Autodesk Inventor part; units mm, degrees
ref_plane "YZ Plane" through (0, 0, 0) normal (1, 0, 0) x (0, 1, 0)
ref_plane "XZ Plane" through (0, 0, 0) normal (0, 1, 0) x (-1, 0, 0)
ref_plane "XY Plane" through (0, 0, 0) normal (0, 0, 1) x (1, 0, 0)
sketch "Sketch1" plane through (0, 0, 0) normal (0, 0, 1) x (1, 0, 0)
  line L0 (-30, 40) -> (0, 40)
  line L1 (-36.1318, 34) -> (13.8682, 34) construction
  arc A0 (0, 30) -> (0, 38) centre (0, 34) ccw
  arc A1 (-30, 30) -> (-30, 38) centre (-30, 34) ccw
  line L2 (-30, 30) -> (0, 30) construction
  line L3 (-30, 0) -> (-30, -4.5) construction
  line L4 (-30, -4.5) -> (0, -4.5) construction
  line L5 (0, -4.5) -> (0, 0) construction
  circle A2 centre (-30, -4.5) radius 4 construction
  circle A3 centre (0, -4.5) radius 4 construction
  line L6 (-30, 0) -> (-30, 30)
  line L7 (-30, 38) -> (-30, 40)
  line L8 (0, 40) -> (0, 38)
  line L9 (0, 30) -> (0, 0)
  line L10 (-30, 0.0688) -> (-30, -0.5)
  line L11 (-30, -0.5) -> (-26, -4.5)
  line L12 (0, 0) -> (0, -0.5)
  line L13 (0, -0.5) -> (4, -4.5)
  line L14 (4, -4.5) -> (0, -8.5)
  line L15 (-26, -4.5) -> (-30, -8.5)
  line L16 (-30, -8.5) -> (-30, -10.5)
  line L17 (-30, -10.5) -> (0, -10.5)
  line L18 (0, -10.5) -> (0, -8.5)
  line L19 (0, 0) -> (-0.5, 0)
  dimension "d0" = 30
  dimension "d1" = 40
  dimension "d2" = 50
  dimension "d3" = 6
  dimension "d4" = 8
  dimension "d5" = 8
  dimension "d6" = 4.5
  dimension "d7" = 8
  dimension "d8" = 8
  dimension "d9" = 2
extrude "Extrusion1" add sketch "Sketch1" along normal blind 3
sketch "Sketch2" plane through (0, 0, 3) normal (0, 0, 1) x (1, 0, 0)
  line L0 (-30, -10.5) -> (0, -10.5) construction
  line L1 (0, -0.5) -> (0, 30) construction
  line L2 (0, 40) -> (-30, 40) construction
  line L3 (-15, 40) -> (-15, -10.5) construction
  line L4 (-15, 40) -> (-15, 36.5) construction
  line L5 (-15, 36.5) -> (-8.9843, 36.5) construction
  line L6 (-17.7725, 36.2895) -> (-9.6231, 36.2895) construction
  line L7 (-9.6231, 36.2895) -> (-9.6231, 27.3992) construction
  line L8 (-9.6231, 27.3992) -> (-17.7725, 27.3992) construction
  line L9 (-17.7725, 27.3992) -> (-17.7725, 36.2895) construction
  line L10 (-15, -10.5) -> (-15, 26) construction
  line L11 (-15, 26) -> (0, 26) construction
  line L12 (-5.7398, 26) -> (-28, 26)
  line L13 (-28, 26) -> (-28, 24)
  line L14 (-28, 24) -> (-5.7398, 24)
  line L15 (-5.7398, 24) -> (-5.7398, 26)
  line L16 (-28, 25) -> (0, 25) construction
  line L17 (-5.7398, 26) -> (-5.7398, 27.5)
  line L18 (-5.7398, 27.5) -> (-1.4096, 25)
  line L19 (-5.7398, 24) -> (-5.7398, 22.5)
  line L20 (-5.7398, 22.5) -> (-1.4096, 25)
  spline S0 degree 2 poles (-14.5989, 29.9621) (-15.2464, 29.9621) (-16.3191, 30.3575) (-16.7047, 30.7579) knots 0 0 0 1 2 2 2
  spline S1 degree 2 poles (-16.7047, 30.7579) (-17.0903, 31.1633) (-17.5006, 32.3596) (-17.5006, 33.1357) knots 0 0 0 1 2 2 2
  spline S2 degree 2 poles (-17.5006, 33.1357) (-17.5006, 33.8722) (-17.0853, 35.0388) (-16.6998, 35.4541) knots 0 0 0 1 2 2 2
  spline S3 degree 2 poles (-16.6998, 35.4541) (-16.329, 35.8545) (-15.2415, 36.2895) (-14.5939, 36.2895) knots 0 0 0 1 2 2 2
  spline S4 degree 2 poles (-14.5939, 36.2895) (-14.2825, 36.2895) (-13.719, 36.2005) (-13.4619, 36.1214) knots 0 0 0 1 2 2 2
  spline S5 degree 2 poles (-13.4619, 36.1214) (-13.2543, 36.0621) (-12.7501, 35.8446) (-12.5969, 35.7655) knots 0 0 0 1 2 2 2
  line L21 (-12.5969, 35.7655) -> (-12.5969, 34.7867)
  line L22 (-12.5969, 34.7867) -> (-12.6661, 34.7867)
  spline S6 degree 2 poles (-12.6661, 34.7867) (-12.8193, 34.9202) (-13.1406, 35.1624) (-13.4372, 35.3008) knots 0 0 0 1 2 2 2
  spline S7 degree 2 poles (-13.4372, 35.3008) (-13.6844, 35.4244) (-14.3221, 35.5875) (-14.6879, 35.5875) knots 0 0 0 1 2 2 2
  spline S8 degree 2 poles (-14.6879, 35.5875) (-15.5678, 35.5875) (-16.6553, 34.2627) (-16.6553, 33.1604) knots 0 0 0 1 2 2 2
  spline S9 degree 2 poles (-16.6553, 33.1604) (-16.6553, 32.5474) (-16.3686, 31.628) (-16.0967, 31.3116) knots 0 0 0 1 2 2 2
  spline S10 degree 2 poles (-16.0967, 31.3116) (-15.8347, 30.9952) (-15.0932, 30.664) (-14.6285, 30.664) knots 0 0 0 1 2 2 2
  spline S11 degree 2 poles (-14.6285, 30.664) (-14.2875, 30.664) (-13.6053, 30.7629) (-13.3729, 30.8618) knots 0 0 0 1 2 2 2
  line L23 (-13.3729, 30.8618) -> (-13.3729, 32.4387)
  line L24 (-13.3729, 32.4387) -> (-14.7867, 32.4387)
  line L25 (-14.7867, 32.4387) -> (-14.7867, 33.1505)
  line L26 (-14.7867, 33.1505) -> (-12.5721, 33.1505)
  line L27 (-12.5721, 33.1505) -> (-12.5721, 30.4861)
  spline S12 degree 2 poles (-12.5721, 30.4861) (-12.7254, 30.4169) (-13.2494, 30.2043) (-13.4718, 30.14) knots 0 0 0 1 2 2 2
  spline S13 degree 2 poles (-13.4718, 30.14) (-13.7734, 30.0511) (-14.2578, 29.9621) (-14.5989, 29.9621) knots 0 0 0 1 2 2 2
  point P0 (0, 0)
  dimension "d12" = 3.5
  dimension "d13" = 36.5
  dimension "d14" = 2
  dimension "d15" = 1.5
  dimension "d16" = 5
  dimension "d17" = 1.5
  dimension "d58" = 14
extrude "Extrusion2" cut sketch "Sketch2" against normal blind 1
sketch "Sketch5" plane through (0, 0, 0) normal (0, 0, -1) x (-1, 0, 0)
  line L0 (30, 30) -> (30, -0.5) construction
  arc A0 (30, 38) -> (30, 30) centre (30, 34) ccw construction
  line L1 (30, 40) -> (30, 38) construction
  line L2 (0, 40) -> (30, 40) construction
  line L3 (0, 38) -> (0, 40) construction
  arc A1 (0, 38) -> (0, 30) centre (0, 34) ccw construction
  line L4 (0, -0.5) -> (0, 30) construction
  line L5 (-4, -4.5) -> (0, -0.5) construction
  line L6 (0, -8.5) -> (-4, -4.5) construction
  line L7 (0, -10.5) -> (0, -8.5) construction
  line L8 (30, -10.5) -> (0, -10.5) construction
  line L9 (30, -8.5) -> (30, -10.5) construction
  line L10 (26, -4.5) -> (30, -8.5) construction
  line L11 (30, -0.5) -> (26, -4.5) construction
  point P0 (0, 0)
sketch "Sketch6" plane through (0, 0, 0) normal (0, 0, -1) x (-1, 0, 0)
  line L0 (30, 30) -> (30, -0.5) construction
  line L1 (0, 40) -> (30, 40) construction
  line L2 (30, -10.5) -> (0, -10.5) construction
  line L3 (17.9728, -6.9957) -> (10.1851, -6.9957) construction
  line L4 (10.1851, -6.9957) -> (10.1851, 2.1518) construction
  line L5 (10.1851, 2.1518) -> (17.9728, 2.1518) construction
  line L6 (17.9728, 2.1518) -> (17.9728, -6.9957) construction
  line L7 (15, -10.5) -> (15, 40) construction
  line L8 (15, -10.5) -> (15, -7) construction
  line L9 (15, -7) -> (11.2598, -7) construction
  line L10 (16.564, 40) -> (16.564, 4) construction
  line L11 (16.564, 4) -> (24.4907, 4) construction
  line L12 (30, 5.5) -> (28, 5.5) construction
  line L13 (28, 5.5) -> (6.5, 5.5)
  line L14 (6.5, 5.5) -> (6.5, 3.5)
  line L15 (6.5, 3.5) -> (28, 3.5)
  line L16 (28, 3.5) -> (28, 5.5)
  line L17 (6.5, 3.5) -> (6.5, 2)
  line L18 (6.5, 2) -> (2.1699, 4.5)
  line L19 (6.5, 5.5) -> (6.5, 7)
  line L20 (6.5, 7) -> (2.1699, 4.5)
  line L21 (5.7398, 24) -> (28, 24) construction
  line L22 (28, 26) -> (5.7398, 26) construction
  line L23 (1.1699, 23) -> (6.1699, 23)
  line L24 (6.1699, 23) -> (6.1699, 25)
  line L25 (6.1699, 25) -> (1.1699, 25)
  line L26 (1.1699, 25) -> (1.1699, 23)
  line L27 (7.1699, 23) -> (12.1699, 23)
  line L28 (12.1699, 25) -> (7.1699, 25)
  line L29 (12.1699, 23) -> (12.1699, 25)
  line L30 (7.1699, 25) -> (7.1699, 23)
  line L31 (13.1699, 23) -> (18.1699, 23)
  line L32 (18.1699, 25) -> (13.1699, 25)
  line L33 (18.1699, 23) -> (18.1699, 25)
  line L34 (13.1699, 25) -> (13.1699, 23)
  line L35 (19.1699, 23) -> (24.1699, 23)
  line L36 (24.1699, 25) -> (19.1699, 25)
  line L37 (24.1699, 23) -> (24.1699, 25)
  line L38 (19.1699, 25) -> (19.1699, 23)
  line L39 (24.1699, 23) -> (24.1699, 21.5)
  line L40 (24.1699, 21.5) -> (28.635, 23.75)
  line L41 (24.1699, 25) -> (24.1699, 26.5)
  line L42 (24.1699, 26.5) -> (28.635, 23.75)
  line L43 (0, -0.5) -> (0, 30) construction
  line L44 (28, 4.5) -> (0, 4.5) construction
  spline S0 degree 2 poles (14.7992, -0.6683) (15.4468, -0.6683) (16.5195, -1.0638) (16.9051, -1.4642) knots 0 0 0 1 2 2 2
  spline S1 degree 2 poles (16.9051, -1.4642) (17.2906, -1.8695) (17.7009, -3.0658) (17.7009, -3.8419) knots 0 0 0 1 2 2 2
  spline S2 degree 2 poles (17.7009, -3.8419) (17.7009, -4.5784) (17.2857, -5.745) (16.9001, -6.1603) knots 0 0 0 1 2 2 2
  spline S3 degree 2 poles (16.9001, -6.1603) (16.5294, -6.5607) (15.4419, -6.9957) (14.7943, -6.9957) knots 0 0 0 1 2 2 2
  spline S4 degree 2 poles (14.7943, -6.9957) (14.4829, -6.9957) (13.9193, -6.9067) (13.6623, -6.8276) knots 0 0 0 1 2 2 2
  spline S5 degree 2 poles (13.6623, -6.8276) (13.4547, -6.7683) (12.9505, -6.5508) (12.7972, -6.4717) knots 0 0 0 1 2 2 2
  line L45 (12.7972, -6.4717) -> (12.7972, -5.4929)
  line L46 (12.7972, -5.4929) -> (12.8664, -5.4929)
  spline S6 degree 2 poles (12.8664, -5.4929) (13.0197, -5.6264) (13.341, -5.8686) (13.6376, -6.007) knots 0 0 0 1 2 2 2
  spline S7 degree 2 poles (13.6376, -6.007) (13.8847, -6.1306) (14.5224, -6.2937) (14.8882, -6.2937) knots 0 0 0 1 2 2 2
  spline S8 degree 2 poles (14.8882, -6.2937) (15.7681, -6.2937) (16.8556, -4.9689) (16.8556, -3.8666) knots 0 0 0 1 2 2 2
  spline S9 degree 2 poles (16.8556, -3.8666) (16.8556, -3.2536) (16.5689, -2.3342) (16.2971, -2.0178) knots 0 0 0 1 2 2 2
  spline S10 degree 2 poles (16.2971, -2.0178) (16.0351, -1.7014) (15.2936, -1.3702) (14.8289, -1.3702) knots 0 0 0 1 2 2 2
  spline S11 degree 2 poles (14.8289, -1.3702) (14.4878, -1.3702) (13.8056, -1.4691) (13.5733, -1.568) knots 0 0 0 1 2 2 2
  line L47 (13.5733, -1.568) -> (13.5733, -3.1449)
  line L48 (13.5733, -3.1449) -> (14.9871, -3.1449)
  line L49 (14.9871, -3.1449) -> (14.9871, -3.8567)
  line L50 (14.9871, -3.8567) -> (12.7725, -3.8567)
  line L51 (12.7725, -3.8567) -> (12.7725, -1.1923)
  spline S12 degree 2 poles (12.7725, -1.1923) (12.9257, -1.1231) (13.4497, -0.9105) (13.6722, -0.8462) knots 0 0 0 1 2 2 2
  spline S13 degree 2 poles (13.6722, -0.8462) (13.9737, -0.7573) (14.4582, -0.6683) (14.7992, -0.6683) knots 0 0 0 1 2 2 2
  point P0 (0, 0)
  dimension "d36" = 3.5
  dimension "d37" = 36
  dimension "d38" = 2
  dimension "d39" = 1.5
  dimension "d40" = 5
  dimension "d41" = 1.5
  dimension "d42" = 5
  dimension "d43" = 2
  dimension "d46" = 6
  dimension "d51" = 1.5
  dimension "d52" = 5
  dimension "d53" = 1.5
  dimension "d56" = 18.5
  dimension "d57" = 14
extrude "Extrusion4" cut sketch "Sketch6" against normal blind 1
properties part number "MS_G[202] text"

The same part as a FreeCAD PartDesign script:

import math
import FreeCAD as App
import Part
import Sketcher

V = App.Vector


def add_polygon(sketch, points):
    """Adds a closed chain of lines whose ends are joined by coincident constraints."""
    first, n = sketch.GeometryCount, len(points)
    for a, b in zip(points, points[1:] + points[:1]):
        sketch.addGeometry(Part.LineSegment(App.Vector(*a, 0), App.Vector(*b, 0)), False)
    for i in range(n):
        sketch.addConstraint(Sketcher.Constraint("Coincident", first + i, 2, first + (i + 1) % n, 1))

doc = App.newDocument("Part")
params = doc.addObject("Spreadsheet::Sheet", "Params")
for row, (alias, value) in enumerate([
    ("sketch1_radius", "4 mm"),
    ("sketch1_width", "30 mm"),
    ("sketch1_height", "2 mm"),
    ("pad1_length", "3 mm"),
    ("sketch2_height", "2 mm"),
    ("sketch2_length", "5 mm"),
    ("sketch2_height2", "1.5 mm"),
    ("pocket1_length", "1 mm"),
    ("sketch3_width", "5 mm"),
    ("sketch3_height", "2 mm"),
    ("sketch3_length", "5 mm"),
    ("sketch3_height2", "1.5 mm"),
    ("sketch3_width2", "21.5 mm"),
    ("pocket2_length", "1 mm"),
], start=1):
    params.set(f"A{row}", alias)
    params.set(f"B{row}", "=" + value)
    params.setAlias(f"B{row}", alias)

body = doc.addObject("PartDesign::Body", "Body")

# Sketch on XY plane
sketch1 = body.newObject("Sketcher::SketchObject", "Sketch")
sketch1.AttachmentSupport = (doc.getObject("XY_Plane"), [""])
sketch1.MapMode = "FlatFace"
sketch1.addGeometry([
    Part.LineSegment(V(0, 40, 0), V(-30, 40, 0)),  # 0
    Part.LineSegment(V(-30, 40, 0), V(-30, 38, 0)),  # 1
    Part.ArcOfCircle(Part.Circle(V(-30, 34, 0), V(0, 0, 1), 4), math.radians(-90), math.radians(90)),  # 2
    Part.LineSegment(V(-30, 30, 0), V(-30, -0.5, 0)),  # 3
    Part.LineSegment(V(-30, -0.5, 0), V(-26, -4.5, 0)),  # 4
    Part.LineSegment(V(-26, -4.5, 0), V(-30, -8.5, 0)),  # 5
    Part.LineSegment(V(-30, -8.5, 0), V(-30, -10.5, 0)),  # 6
    Part.LineSegment(V(-30, -10.5, 0), V(0, -10.5, 0)),  # 7
    Part.LineSegment(V(0, -10.5, 0), V(0, -8.5, 0)),  # 8
    Part.LineSegment(V(0, -8.5, 0), V(4, -4.5, 0)),  # 9
    Part.LineSegment(V(4, -4.5, 0), V(0, -0.5, 0)),  # 10
    Part.LineSegment(V(0, -0.5, 0), V(0, 30, 0)),  # 11
    Part.ArcOfCircle(Part.Circle(V(0, 34, 0), V(0, 0, 1), 4), math.radians(-90), math.radians(90)),  # 12
    Part.LineSegment(V(0, 38, 0), V(0, 40, 0)),  # 13
], False)
sketch1.addConstraint([
    Sketcher.Constraint("Coincident", 0, 2, 1, 1),
    Sketcher.Constraint("Coincident", 1, 2, 2, 2),
    Sketcher.Constraint("Coincident", 2, 1, 3, 1),
    Sketcher.Constraint("Coincident", 3, 2, 4, 1),
    Sketcher.Constraint("Coincident", 4, 2, 5, 1),
    Sketcher.Constraint("Coincident", 5, 2, 6, 1),
    Sketcher.Constraint("Coincident", 6, 2, 7, 1),
    Sketcher.Constraint("Coincident", 7, 2, 8, 1),
    Sketcher.Constraint("Coincident", 8, 2, 9, 1),
    Sketcher.Constraint("Coincident", 9, 2, 10, 1),
    Sketcher.Constraint("Coincident", 10, 2, 11, 1),
    Sketcher.Constraint("Coincident", 11, 2, 12, 1),
    Sketcher.Constraint("Coincident", 12, 2, 13, 1),
    Sketcher.Constraint("Coincident", 13, 2, 0, 1),
    Sketcher.Constraint("Horizontal", 0),
    Sketcher.Constraint("Vertical", 1),
    Sketcher.Constraint("Vertical", 3),
    Sketcher.Constraint("Vertical", 6),
    Sketcher.Constraint("Horizontal", 7),
    Sketcher.Constraint("Vertical", 8),
    Sketcher.Constraint("Vertical", 11),
    Sketcher.Constraint("Vertical", 13),
    Sketcher.Constraint("Equal", 2, 12),
    Sketcher.Constraint("PointOnObject", 12, 3, -2),
    Sketcher.Constraint("PointOnObject", 7, 2, -2),
    Sketcher.Constraint("PointOnObject", 10, 2, -2),
    Sketcher.Constraint("PointOnObject", 12, 2, -2),
    Sketcher.Constraint("Perpendicular", 4, 5),
    Sketcher.Constraint("Parallel", 5, 9),
    Sketcher.Constraint("Perpendicular", 9, 10),
    Sketcher.Constraint("Horizontal", 2, 3, 12, 3),
    Sketcher.Constraint("Horizontal", 5, 2, 8, 2),
    Sketcher.Constraint("Horizontal", 4, 2, 9, 2),
    Sketcher.Constraint("Horizontal", 3, 2, 10, 2),
    Sketcher.Constraint("Vertical", 2, 3, 0, 2),
    Sketcher.Constraint("Vertical", 1, 2, 2, 1),
    Sketcher.Constraint("Equal", 1, 6),
    Sketcher.Constraint("Equal", 4, 5),
    Sketcher.Constraint("Radius", 2, 4.0),
    Sketcher.Constraint("DistanceX", 0, 2, 0, 1, 30.0),
    Sketcher.Constraint("DistanceY", 1, 2, 1, 1, 2.0),
    Sketcher.Constraint("DistanceY", -1, 1, 0, 2, 40.0),
    Sketcher.Constraint("DistanceY", 5, 2, 3, 2, 8.0),
    Sketcher.Constraint("DistanceY", 4, 2, -1, 1, 4.5),
])
sketch1.setExpression("Constraints[38]", "Params.sketch1_radius")
sketch1.setExpression("Constraints[39]", "Params.sketch1_width")
sketch1.setExpression("Constraints[40]", "Params.sketch1_height")
pad1 = body.newObject("PartDesign::Pad", "Pad")
pad1.Profile = sketch1
pad1.setExpression("Length", "Params.pad1_length")

# Sketch on XY plane
sketch2 = body.newObject("Sketcher::SketchObject", "Sketch001")
sketch2.AttachmentSupport = (doc.getObject("XY_Plane"), [""])
sketch2.MapMode = "FlatFace"
sketch2.AttachmentOffset = App.Placement(V(0, 0, 3), App.Rotation())
add_polygon(sketch2, [(-28, 24), (-5.7398, 24), (-5.7398, 22.5), (-1.4096, 25), (-5.7398, 27.5), (-5.7398, 26), (-28, 26)])  # lines 0-6
sketch2.addGeometry(Part.BSplineCurve([V(-14.5989, 29.9621, 0), V(-15.2464, 29.9621, 0), V(-16.3191, 30.3575, 0), V(-16.7047, 30.7579, 0)], [3, 1, 3], [0, 1, 2], False, 2, [1, 1, 1, 1], False), False)  # 7
sketch2.addGeometry(Part.BSplineCurve([V(-13.4718, 30.14, 0), V(-13.7734, 30.0511, 0), V(-14.2578, 29.9621, 0), V(-14.5989, 29.9621, 0)], [3, 1, 3], [0, 1, 2], False, 2, [1, 1, 1, 1], False), False)  # 8
sketch2.addGeometry(Part.BSplineCurve([V(-12.5721, 30.4861, 0), V(-12.7254, 30.4169, 0), V(-13.2494, 30.2043, 0), V(-13.4718, 30.14, 0)], [3, 1, 3], [0, 1, 2], False, 2, [1, 1, 1, 1], False), False)  # 9
sketch2.addGeometry(Part.LineSegment(V(-12.5721, 30.4861, 0), V(-12.5721, 33.1505, 0)), False)  # 10
sketch2.addGeometry(Part.LineSegment(V(-12.5721, 33.1505, 0), V(-14.7867, 33.1505, 0)), False)  # 11
sketch2.addGeometry(Part.LineSegment(V(-14.7867, 33.1505, 0), V(-14.7867, 32.4387, 0)), False)  # 12
sketch2.addGeometry(Part.LineSegment(V(-14.7867, 32.4387, 0), V(-13.3729, 32.4387, 0)), False)  # 13
sketch2.addGeometry(Part.LineSegment(V(-13.3729, 32.4387, 0), V(-13.3729, 30.8618, 0)), False)  # 14
sketch2.addGeometry(Part.BSplineCurve([V(-14.6285, 30.664, 0), V(-14.2875, 30.664, 0), V(-13.6053, 30.7629, 0), V(-13.3729, 30.8618, 0)], [3, 1, 3], [0, 1, 2], False, 2, [1, 1, 1, 1], False), False)  # 15
sketch2.addGeometry(Part.BSplineCurve([V(-16.0967, 31.3116, 0), V(-15.8347, 30.9952, 0), V(-15.0932, 30.664, 0), V(-14.6285, 30.664, 0)], [3, 1, 3], [0, 1, 2], False, 2, [1, 1, 1, 1], False), False)  # 16
sketch2.addGeometry(Part.BSplineCurve([V(-16.6553, 33.1604, 0), V(-16.6553, 32.5474, 0), V(-16.3686, 31.628, 0), V(-16.0967, 31.3116, 0)], [3, 1, 3], [0, 1, 2], False, 2, [1, 1, 1, 1], False), False)  # 17
sketch2.addGeometry(Part.BSplineCurve([V(-14.6879, 35.5875, 0), V(-15.5678, 35.5875, 0), V(-16.6553, 34.2627, 0), V(-16.6553, 33.1604, 0)], [3, 1, 3], [0, 1, 2], False, 2, [1, 1, 1, 1], False), False)  # 18
sketch2.addGeometry(Part.BSplineCurve([V(-13.4372, 35.3008, 0), V(-13.6844, 35.4244, 0), V(-14.3221, 35.5875, 0), V(-14.6879, 35.5875, 0)], [3, 1, 3], [0, 1, 2], False, 2, [1, 1, 1, 1], False), False)  # 19
sketch2.addGeometry(Part.BSplineCurve([V(-12.6661, 34.7867, 0), V(-12.8193, 34.9202, 0), V(-13.1406, 35.1624, 0), V(-13.4372, 35.3008, 0)], [3, 1, 3], [0, 1, 2], False, 2, [1, 1, 1, 1], False), False)  # 20
sketch2.addGeometry(Part.LineSegment(V(-12.6661, 34.7867, 0), V(-12.5969, 34.7867, 0)), False)  # 21
sketch2.addGeometry(Part.LineSegment(V(-12.5969, 34.7867, 0), V(-12.5969, 35.7655, 0)), False)  # 22
sketch2.addGeometry(Part.BSplineCurve([V(-13.4619, 36.1214, 0), V(-13.2543, 36.0621, 0), V(-12.7501, 35.8446, 0), V(-12.5969, 35.7655, 0)], [3, 1, 3], [0, 1, 2], False, 2, [1, 1, 1, 1], False), False)  # 23
sketch2.addGeometry(Part.BSplineCurve([V(-14.5939, 36.2895, 0), V(-14.2825, 36.2895, 0), V(-13.719, 36.2005, 0), V(-13.4619, 36.1214, 0)], [3, 1, 3], [0, 1, 2], False, 2, [1, 1, 1, 1], False), False)  # 24
sketch2.addGeometry(Part.BSplineCurve([V(-16.6998, 35.4541, 0), V(-16.329, 35.8545, 0), V(-15.2415, 36.2895, 0), V(-14.5939, 36.2895, 0)], [3, 1, 3], [0, 1, 2], False, 2, [1, 1, 1, 1], False), False)  # 25
sketch2.addGeometry(Part.BSplineCurve([V(-17.5006, 33.1357, 0), V(-17.5006, 33.8722, 0), V(-17.0853, 35.0388, 0), V(-16.6998, 35.4541, 0)], [3, 1, 3], [0, 1, 2], False, 2, [1, 1, 1, 1], False), False)  # 26
sketch2.addGeometry(Part.BSplineCurve([V(-16.7047, 30.7579, 0), V(-17.0903, 31.1633, 0), V(-17.5006, 32.3596, 0), V(-17.5006, 33.1357, 0)], [3, 1, 3], [0, 1, 2], False, 2, [1, 1, 1, 1], False), False)  # 27
sketch2.addConstraint([
    Sketcher.Constraint("Block", 7),
    Sketcher.Constraint("Block", 8),
    Sketcher.Constraint("Block", 9),
    Sketcher.Constraint("Block", 15),
    Sketcher.Constraint("Block", 16),
    Sketcher.Constraint("Block", 17),
    Sketcher.Constraint("Block", 18),
    Sketcher.Constraint("Block", 19),
    Sketcher.Constraint("Block", 20),
    Sketcher.Constraint("Block", 23),
    Sketcher.Constraint("Block", 24),
    Sketcher.Constraint("Block", 25),
    Sketcher.Constraint("Block", 26),
    Sketcher.Constraint("Block", 27),
    Sketcher.Constraint("Coincident", 9, 1, 10, 1),
    Sketcher.Constraint("Coincident", 10, 2, 11, 1),
    Sketcher.Constraint("Coincident", 11, 2, 12, 1),
    Sketcher.Constraint("Coincident", 12, 2, 13, 1),
    Sketcher.Constraint("Coincident", 13, 2, 14, 1),
    Sketcher.Constraint("Coincident", 14, 2, 15, 2),
    Sketcher.Constraint("Coincident", 20, 1, 21, 1),
    Sketcher.Constraint("Coincident", 21, 2, 22, 1),
    Sketcher.Constraint("Coincident", 22, 2, 23, 2),
    Sketcher.Constraint("Horizontal", 0),
    Sketcher.Constraint("Vertical", 1),
    Sketcher.Constraint("Vertical", 4),
    Sketcher.Constraint("Horizontal", 5),
    Sketcher.Constraint("Vertical", 6),
    Sketcher.Constraint("Vertical", 10),
    Sketcher.Constraint("Horizontal", 11),
    Sketcher.Constraint("Vertical", 12),
    Sketcher.Constraint("Horizontal", 13),
    Sketcher.Constraint("Vertical", 14),
    Sketcher.Constraint("Horizontal", 21),
    Sketcher.Constraint("Vertical", 22),
    Sketcher.Constraint("Vertical", 1, 2, 3, 2),
    Sketcher.Constraint("Equal", 1, 4),
    Sketcher.Constraint("Equal", 2, 3),
    Sketcher.Constraint("DistanceY", 6, 2, 6, 1, 2.0),
    Sketcher.Constraint("Distance", 2, 5.0),
    Sketcher.Constraint("DistanceY", 1, 2, 1, 1, 1.5),
    Sketcher.Constraint("DistanceY", -1, 1, 0, 2, 24.0),
    Sketcher.Constraint("DistanceX", 5, 2, -1, 1, 28.0),
    Sketcher.Constraint("DistanceY", 14, 2, 14, 1, 1.577),
    Sketcher.Constraint("DistanceX", 0, 1, 0, 2, 22.2602),
    Sketcher.Constraint("DistanceX", 11, 2, 11, 1, 2.2146),
    Sketcher.Constraint("DistanceY", 10, 1, 10, 2, 2.6644),
])
sketch2.setExpression("Constraints[45]", "Params.sketch2_height")
sketch2.setExpression("Constraints[46]", "Params.sketch2_length")
sketch2.setExpression("Constraints[47]", "Params.sketch2_height2")
pocket1 = body.newObject("PartDesign::Pocket", "Pocket")
pocket1.Profile = sketch2
pocket1.setExpression("Length", "Params.pocket1_length")

# Sketch on XY plane
sketch3 = body.newObject("Sketcher::SketchObject", "Sketch002")
sketch3.AttachmentSupport = (doc.getObject("XY_Plane"), [""])
sketch3.MapMode = "FlatFace"
add_polygon(sketch3, [(-28, 3.5), (-28, 5.5), (-6.5, 5.5), (-6.5, 7), (-2.1699, 4.5), (-6.5, 2), (-6.5, 3.5)])  # lines 0-6
add_polygon(sketch3, [(-1.1699, 25), (-1.1699, 23), (-6.1699, 23), (-6.1699, 25)])  # lines 7-10
add_polygon(sketch3, [(-7.1699, 25), (-7.1699, 23), (-12.1699, 23), (-12.1699, 25)])  # lines 11-14
add_polygon(sketch3, [(-13.1699, 25), (-13.1699, 23), (-18.1699, 23), (-18.1699, 25)])  # lines 15-18
add_polygon(sketch3, [(-19.1699, 25), (-19.1699, 23), (-24.1699, 23), (-24.1699, 21.5), (-28.635, 23.75), (-24.1699, 26.5), (-24.1699, 25)])  # lines 19-25
sketch3.addGeometry(Part.BSplineCurve([V(-14.7992, -0.6683, 0), V(-15.4468, -0.6683, 0), V(-16.5195, -1.0638, 0), V(-16.9051, -1.4642, 0)], [3, 1, 3], [0, 1, 2], False, 2, [1, 1, 1, 1], False), False)  # 26
sketch3.addGeometry(Part.BSplineCurve([V(-13.6722, -0.8462, 0), V(-13.9737, -0.7573, 0), V(-14.4582, -0.6683, 0), V(-14.7992, -0.6683, 0)], [3, 1, 3], [0, 1, 2], False, 2, [1, 1, 1, 1], False), False)  # 27
sketch3.addGeometry(Part.BSplineCurve([V(-12.7725, -1.1923, 0), V(-12.9257, -1.1231, 0), V(-13.4497, -0.9105, 0), V(-13.6722, -0.8462, 0)], [3, 1, 3], [0, 1, 2], False, 2, [1, 1, 1, 1], False), False)  # 28
sketch3.addGeometry(Part.LineSegment(V(-12.7725, -1.1923, 0), V(-12.7725, -3.8567, 0)), False)  # 29
sketch3.addGeometry(Part.LineSegment(V(-12.7725, -3.8567, 0), V(-14.9871, -3.8567, 0)), False)  # 30
sketch3.addGeometry(Part.LineSegment(V(-14.9871, -3.8567, 0), V(-14.9871, -3.1449, 0)), False)  # 31
sketch3.addGeometry(Part.LineSegment(V(-14.9871, -3.1449, 0), V(-13.5733, -3.1449, 0)), False)  # 32
sketch3.addGeometry(Part.LineSegment(V(-13.5733, -3.1449, 0), V(-13.5733, -1.568, 0)), False)  # 33
sketch3.addGeometry(Part.BSplineCurve([V(-14.8289, -1.3702, 0), V(-14.4878, -1.3702, 0), V(-13.8056, -1.4691, 0), V(-13.5733, -1.568, 0)], [3, 1, 3], [0, 1, 2], False, 2, [1, 1, 1, 1], False), False)  # 34
sketch3.addGeometry(Part.BSplineCurve([V(-16.2971, -2.0178, 0), V(-16.0351, -1.7014, 0), V(-15.2936, -1.3702, 0), V(-14.8289, -1.3702, 0)], [3, 1, 3], [0, 1, 2], False, 2, [1, 1, 1, 1], False), False)  # 35
sketch3.addGeometry(Part.BSplineCurve([V(-16.8556, -3.8666, 0), V(-16.8556, -3.2536, 0), V(-16.5689, -2.3342, 0), V(-16.2971, -2.0178, 0)], [3, 1, 3], [0, 1, 2], False, 2, [1, 1, 1, 1], False), False)  # 36
sketch3.addGeometry(Part.BSplineCurve([V(-14.8882, -6.2937, 0), V(-15.7681, -6.2937, 0), V(-16.8556, -4.9689, 0), V(-16.8556, -3.8666, 0)], [3, 1, 3], [0, 1, 2], False, 2, [1, 1, 1, 1], False), False)  # 37
sketch3.addGeometry(Part.BSplineCurve([V(-13.6376, -6.007, 0), V(-13.8847, -6.1306, 0), V(-14.5224, -6.2937, 0), V(-14.8882, -6.2937, 0)], [3, 1, 3], [0, 1, 2], False, 2, [1, 1, 1, 1], False), False)  # 38
sketch3.addGeometry(Part.BSplineCurve([V(-12.8664, -5.4929, 0), V(-13.0197, -5.6264, 0), V(-13.341, -5.8686, 0), V(-13.6376, -6.007, 0)], [3, 1, 3], [0, 1, 2], False, 2, [1, 1, 1, 1], False), False)  # 39
sketch3.addGeometry(Part.LineSegment(V(-12.8664, -5.4929, 0), V(-12.7972, -5.4929, 0)), False)  # 40
sketch3.addGeometry(Part.LineSegment(V(-12.7972, -5.4929, 0), V(-12.7972, -6.4717, 0)), False)  # 41
sketch3.addGeometry(Part.BSplineCurve([V(-13.6623, -6.8276, 0), V(-13.4547, -6.7683, 0), V(-12.9505, -6.5508, 0), V(-12.7972, -6.4717, 0)], [3, 1, 3], [0, 1, 2], False, 2, [1, 1, 1, 1], False), False)  # 42
sketch3.addGeometry(Part.BSplineCurve([V(-14.7943, -6.9957, 0), V(-14.4829, -6.9957, 0), V(-13.9193, -6.9067, 0), V(-13.6623, -6.8276, 0)], [3, 1, 3], [0, 1, 2], False, 2, [1, 1, 1, 1], False), False)  # 43
sketch3.addGeometry(Part.BSplineCurve([V(-16.9001, -6.1603, 0), V(-16.5294, -6.5607, 0), V(-15.4419, -6.9957, 0), V(-14.7943, -6.9957, 0)], [3, 1, 3], [0, 1, 2], False, 2, [1, 1, 1, 1], False), False)  # 44
sketch3.addGeometry(Part.BSplineCurve([V(-17.7009, -3.8419, 0), V(-17.7009, -4.5784, 0), V(-17.2857, -5.745, 0), V(-16.9001, -6.1603, 0)], [3, 1, 3], [0, 1, 2], False, 2, [1, 1, 1, 1], False), False)  # 45
sketch3.addGeometry(Part.BSplineCurve([V(-16.9051, -1.4642, 0), V(-17.2906, -1.8695, 0), V(-17.7009, -3.0658, 0), V(-17.7009, -3.8419, 0)], [3, 1, 3], [0, 1, 2], False, 2, [1, 1, 1, 1], False), False)  # 46
sketch3.addConstraint([
    Sketcher.Constraint("Block", 26),
    Sketcher.Constraint("Block", 27),
    Sketcher.Constraint("Block", 28),
    Sketcher.Constraint("Block", 34),
    Sketcher.Constraint("Block", 35),
    Sketcher.Constraint("Block", 36),
    Sketcher.Constraint("Block", 37),
    Sketcher.Constraint("Block", 38),
    Sketcher.Constraint("Block", 39),
    Sketcher.Constraint("Block", 42),
    Sketcher.Constraint("Block", 43),
    Sketcher.Constraint("Block", 44),
    Sketcher.Constraint("Block", 45),
    Sketcher.Constraint("Block", 46),
    Sketcher.Constraint("Coincident", 28, 1, 29, 1),
    Sketcher.Constraint("Coincident", 29, 2, 30, 1),
    Sketcher.Constraint("Coincident", 30, 2, 31, 1),
    Sketcher.Constraint("Coincident", 31, 2, 32, 1),
    Sketcher.Constraint("Coincident", 32, 2, 33, 1),
    Sketcher.Constraint("Coincident", 33, 2, 34, 2),
    Sketcher.Constraint("Coincident", 39, 1, 40, 1),
    Sketcher.Constraint("Coincident", 40, 2, 41, 1),
    Sketcher.Constraint("Coincident", 41, 2, 42, 2),
    Sketcher.Constraint("Vertical", 0),
    Sketcher.Constraint("Horizontal", 1),
    Sketcher.Constraint("Vertical", 2),
    Sketcher.Constraint("Vertical", 5),
    Sketcher.Constraint("Horizontal", 6),
    Sketcher.Constraint("Vertical", 7),
    Sketcher.Constraint("Horizontal", 8),
    Sketcher.Constraint("Vertical", 9),
    Sketcher.Constraint("Horizontal", 10),
    Sketcher.Constraint("Vertical", 11),
    Sketcher.Constraint("Horizontal", 12),
    Sketcher.Constraint("Vertical", 13),
    Sketcher.Constraint("Horizontal", 14),
    Sketcher.Constraint("Vertical", 15),
    Sketcher.Constraint("Horizontal", 16),
    Sketcher.Constraint("Vertical", 17),
    Sketcher.Constraint("Horizontal", 18),
    Sketcher.Constraint("Vertical", 19),
    Sketcher.Constraint("Horizontal", 20),
    Sketcher.Constraint("Vertical", 21),
    Sketcher.Constraint("Vertical", 24),
    Sketcher.Constraint("Horizontal", 25),
    Sketcher.Constraint("Vertical", 29),
    Sketcher.Constraint("Horizontal", 30),
    Sketcher.Constraint("Vertical", 31),
    Sketcher.Constraint("Horizontal", 32),
    Sketcher.Constraint("Vertical", 33),
    Sketcher.Constraint("Horizontal", 40),
    Sketcher.Constraint("Vertical", 41),
    Sketcher.Constraint("Horizontal", 8, 2, 11, 2),
    Sketcher.Constraint("Horizontal", 10, 2, 13, 2),
    Sketcher.Constraint("Horizontal", 12, 2, 15, 2),
    Sketcher.Constraint("Horizontal", 14, 2, 17, 2),
    Sketcher.Constraint("Horizontal", 16, 2, 19, 2),
    Sketcher.Constraint("Horizontal", 18, 2, 24, 2),
    Sketcher.Constraint("Vertical", 2, 2, 4, 2),
    Sketcher.Constraint("Vertical", 21, 2, 23, 2),
    Sketcher.Constraint("Equal", 10, 12),
    Sketcher.Constraint("Equal", 14, 16),
    Sketcher.Constraint("Equal", 18, 20),
    Sketcher.Constraint("Equal", 2, 5),
    Sketcher.Constraint("Equal", 0, 7),
    Sketcher.Constraint("Equal", 5, 21),
    Sketcher.Constraint("Equal", 21, 24),
    Sketcher.Constraint("Equal", 3, 4),
    Sketcher.Constraint("Equal", 4, 22),
    Sketcher.Constraint("DistanceX", 8, 2, 8, 1, 5.0),
    Sketcher.Constraint("DistanceY", 0, 1, 0, 2, 2.0),
    Sketcher.Constraint("Distance", 3, 5.0),
    Sketcher.Constraint("DistanceY", 2, 1, 2, 2, 1.5),
    Sketcher.Constraint("DistanceY", -1, 1, 4, 2, 2.0),
    Sketcher.Constraint("DistanceX", 11, 2, 7, 2, 6.0),
    Sketcher.Constraint("DistanceX", 15, 2, 11, 2, 6.0),
    Sketcher.Constraint("DistanceX", 19, 2, 15, 2, 6.0),
    Sketcher.Constraint("DistanceY", 3, 2, 7, 2, 18.5),
    Sketcher.Constraint("DistanceX", 1, 1, 1, 2, 21.5),
    Sketcher.Constraint("DistanceX", 0, 2, -1, 1, 28.0),
    Sketcher.Constraint("DistanceX", 3, 2, 7, 2, 1.0),
    Sketcher.Constraint("DistanceY", 33, 1, 33, 2, 1.577),
    Sketcher.Constraint("DistanceY", -1, 1, 22, 2, 23.75),
    Sketcher.Constraint("DistanceX", 30, 2, 40, 2, 2.19),
    Sketcher.Constraint("DistanceY", 29, 2, 29, 1, 2.6644),
])
sketch3.setExpression("Constraints[95]", "Params.sketch3_width")
sketch3.setExpression("Constraints[96]", "Params.sketch3_height")
sketch3.setExpression("Constraints[97]", "Params.sketch3_length")
sketch3.setExpression("Constraints[98]", "Params.sketch3_height2")
sketch3.setExpression("Constraints[104]", "Params.sketch3_width2")
pocket2 = body.newObject("PartDesign::Pocket", "Pocket001")
pocket2.Profile = sketch3
pocket2.setExpression("Length", "Params.pocket2_length")
pocket2.Reversed = True

doc.recompute()
